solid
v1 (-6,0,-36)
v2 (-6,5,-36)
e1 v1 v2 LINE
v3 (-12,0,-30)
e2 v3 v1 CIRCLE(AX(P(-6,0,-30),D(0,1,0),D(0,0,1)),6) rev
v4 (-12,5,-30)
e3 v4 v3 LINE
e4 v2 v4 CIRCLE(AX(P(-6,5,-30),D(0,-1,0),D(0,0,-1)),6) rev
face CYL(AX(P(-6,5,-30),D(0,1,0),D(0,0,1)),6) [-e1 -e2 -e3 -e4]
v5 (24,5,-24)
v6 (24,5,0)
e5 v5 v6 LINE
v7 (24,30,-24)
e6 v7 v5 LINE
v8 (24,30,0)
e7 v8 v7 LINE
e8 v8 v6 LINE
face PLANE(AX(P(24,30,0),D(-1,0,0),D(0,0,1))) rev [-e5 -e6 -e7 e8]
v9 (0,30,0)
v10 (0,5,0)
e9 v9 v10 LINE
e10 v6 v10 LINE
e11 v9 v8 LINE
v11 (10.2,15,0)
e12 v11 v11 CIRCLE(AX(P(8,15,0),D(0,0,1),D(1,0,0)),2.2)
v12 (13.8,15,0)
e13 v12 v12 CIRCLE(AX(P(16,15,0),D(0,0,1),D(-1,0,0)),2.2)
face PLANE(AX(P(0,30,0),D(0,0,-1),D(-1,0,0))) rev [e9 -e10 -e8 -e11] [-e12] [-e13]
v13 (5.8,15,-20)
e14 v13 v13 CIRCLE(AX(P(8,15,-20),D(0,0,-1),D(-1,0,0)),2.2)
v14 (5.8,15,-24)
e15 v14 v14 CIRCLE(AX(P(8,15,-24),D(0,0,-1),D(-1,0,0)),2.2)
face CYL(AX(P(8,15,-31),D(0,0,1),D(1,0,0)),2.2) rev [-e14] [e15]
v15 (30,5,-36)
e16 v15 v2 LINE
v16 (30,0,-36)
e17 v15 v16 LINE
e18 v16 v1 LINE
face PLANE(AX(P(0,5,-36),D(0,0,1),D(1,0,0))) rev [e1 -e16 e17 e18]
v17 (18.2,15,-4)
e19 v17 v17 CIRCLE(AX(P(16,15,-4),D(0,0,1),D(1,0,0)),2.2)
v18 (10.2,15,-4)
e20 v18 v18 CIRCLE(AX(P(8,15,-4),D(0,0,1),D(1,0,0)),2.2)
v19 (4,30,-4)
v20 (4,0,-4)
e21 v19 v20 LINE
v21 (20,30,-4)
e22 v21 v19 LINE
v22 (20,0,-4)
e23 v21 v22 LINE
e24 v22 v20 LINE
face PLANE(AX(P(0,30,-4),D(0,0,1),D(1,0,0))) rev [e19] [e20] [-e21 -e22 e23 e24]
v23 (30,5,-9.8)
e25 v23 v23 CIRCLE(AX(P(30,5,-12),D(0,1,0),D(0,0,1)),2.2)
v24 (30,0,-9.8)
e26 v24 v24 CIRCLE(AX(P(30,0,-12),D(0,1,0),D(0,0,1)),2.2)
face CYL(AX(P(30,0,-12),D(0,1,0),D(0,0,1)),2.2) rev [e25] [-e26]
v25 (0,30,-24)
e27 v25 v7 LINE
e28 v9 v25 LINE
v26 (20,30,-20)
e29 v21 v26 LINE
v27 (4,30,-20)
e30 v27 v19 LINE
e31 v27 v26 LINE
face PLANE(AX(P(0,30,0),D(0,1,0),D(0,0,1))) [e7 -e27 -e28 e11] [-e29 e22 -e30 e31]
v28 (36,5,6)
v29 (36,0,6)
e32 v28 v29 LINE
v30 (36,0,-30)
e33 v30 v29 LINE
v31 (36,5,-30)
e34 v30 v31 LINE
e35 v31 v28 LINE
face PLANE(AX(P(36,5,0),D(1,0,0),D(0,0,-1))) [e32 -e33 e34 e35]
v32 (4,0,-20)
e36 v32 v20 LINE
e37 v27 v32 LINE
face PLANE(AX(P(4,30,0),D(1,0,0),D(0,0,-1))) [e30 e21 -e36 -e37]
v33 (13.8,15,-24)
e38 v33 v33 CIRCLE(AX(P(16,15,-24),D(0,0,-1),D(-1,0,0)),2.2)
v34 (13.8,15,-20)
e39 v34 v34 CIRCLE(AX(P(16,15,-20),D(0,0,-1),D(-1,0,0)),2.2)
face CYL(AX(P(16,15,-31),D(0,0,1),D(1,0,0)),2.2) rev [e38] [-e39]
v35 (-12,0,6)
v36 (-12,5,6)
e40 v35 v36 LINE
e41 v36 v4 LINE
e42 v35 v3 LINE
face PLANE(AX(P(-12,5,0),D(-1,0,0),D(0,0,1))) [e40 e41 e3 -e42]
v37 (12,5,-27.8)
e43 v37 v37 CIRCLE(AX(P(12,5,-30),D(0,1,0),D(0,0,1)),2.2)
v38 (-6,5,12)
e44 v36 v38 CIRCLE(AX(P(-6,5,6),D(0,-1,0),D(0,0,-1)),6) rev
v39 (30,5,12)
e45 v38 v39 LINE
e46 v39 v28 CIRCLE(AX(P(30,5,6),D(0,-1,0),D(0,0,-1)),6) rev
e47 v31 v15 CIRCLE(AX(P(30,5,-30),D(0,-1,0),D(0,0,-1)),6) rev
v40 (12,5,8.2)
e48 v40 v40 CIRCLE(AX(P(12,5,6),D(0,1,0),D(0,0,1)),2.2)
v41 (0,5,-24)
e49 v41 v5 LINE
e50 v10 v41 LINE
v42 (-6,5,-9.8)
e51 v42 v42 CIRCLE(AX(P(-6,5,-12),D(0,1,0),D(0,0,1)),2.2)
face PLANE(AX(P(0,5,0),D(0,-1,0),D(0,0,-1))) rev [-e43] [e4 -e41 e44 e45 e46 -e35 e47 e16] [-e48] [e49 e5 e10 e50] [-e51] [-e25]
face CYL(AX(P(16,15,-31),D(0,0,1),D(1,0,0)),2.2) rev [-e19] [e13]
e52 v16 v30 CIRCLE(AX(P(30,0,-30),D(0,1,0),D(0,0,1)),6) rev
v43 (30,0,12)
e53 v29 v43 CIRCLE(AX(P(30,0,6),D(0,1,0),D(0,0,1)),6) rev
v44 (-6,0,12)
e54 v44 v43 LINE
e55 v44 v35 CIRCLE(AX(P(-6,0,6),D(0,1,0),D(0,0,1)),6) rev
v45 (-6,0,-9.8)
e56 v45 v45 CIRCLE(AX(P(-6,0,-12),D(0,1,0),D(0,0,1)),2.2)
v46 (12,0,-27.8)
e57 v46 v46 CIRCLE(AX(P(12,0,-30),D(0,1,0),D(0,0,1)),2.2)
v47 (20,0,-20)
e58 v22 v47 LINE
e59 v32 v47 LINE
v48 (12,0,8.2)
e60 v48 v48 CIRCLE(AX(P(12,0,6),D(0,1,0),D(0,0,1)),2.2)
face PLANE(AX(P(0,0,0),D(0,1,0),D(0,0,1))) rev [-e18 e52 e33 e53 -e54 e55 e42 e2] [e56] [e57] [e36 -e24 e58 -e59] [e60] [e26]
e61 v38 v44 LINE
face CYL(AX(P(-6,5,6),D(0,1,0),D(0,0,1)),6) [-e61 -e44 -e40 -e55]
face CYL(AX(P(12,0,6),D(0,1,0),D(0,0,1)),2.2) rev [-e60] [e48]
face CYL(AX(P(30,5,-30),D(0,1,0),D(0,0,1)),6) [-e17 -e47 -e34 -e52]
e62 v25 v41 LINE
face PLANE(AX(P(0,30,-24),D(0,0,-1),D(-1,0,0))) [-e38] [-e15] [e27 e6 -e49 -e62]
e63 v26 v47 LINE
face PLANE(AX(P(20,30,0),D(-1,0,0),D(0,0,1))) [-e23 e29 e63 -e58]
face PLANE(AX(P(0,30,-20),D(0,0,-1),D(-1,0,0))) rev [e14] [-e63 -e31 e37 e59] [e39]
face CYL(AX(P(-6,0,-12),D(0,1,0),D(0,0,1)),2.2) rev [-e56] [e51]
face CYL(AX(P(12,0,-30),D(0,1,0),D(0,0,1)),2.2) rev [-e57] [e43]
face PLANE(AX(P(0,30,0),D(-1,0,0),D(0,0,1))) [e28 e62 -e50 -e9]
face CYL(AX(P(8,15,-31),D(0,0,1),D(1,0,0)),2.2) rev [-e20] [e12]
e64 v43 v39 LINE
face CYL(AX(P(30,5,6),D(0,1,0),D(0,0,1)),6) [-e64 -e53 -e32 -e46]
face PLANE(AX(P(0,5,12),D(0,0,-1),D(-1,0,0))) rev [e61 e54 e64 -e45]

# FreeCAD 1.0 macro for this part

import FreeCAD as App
import Part
import Sketcher
Q = App.Units.Quantity


def edges_at(feature, points):
    """Names of the edges that pass closest to the given points."""
    edges = feature.Shape.Edges
    near = lambda p: min(range(len(edges)), key=lambda i: edges[i].distToShape(Part.Vertex(*p))[0])
    return sorted({f"Edge{near(p) + 1}" for p in points})

doc = App.newDocument("Part")
body = doc.addObject("PartDesign::Body", "Body")

sketch1 = doc.addObject("Sketcher::SketchObject", "Sketch")
body.addObject(sketch1)
sketch1.AttachmentSupport = (doc.XZ_Plane, [""])
sketch1.MapMode = "FlatFace"
sketch1.addGeometry(Part.LineSegment(App.Vector(0, -24, 0), App.Vector(0, 0, 0)), False)
sketch1.addGeometry(Part.LineSegment(App.Vector(0, 0, 0), App.Vector(24, 0, 0)), False)
sketch1.addGeometry(Part.LineSegment(App.Vector(24, 0, 0), App.Vector(24, -24, 0)), False)
sketch1.addGeometry(Part.LineSegment(App.Vector(24, -24, 0), App.Vector(0, -24, 0)), False)
sketch1.addGeometry(Part.LineSegment(App.Vector(20, -4, 0), App.Vector(4, -4, 0)), False)
sketch1.addGeometry(Part.LineSegment(App.Vector(4, -4, 0), App.Vector(4, -20, 0)), False)
sketch1.addGeometry(Part.LineSegment(App.Vector(4, -20, 0), App.Vector(20, -20, 0)), False)
sketch1.addGeometry(Part.LineSegment(App.Vector(20, -20, 0), App.Vector(20, -4, 0)), False)
sketch1.addConstraint(Sketcher.Constraint("Coincident", 0, 2, 1, 1))
sketch1.addConstraint(Sketcher.Constraint("Coincident", 1, 2, 2, 1))
sketch1.addConstraint(Sketcher.Constraint("Coincident", 2, 2, 3, 1))
sketch1.addConstraint(Sketcher.Constraint("Coincident", 3, 2, 0, 1))
sketch1.addConstraint(Sketcher.Constraint("Coincident", 4, 2, 5, 1))
sketch1.addConstraint(Sketcher.Constraint("Coincident", 5, 2, 6, 1))
sketch1.addConstraint(Sketcher.Constraint("Coincident", 6, 2, 7, 1))
sketch1.addConstraint(Sketcher.Constraint("Coincident", 7, 2, 4, 1))
sketch1.addConstraint(Sketcher.Constraint("Vertical", 0))
sketch1.addConstraint(Sketcher.Constraint("Horizontal", 1))
sketch1.addConstraint(Sketcher.Constraint("Vertical", 2))
sketch1.addConstraint(Sketcher.Constraint("Horizontal", 3))
sketch1.addConstraint(Sketcher.Constraint("Horizontal", 4))
sketch1.addConstraint(Sketcher.Constraint("Vertical", 5))
sketch1.addConstraint(Sketcher.Constraint("Horizontal", 6))
sketch1.addConstraint(Sketcher.Constraint("Vertical", 7))
sketch1.addConstraint(Sketcher.Constraint("Coincident", 0, 2, -1, 1))
sketch1.addConstraint(Sketcher.Constraint("Equal", 3, 0))
sketch1.addConstraint(Sketcher.Constraint("Equal", 6, 5))
sketch1.addConstraint(Sketcher.Constraint("DistanceX", 1, 1, 1, 2, Q("24 mm")))
sketch1.addConstraint(Sketcher.Constraint("DistanceX", 4, 2, 4, 1, Q("16 mm")))
sketch1.addConstraint(Sketcher.Constraint("DistanceX", -1, 1, 4, 2, Q("4 mm")))
sketch1.addConstraint(Sketcher.Constraint("DistanceY", 4, 2, -1, 1, Q("4 mm")))
pad1 = doc.addObject("PartDesign::Pad", "Pad")
body.addObject(pad1)
pad1.Profile = sketch1
pad1.Length = 30
pad1.Reversed = True

sketch2 = doc.addObject("Sketcher::SketchObject", "Sketch001")
body.addObject(sketch2)
sketch2.AttachmentSupport = (doc.XY_Plane, [""])
sketch2.MapMode = "FlatFace"
sketch2.addGeometry(Part.Circle(App.Vector(8, 15, 0), App.Vector(0, 0, 1), 2.2), False)
sketch2.addGeometry(Part.Circle(App.Vector(16, 15, 0), App.Vector(0, 0, 1), 2.2), False)
sketch2.addConstraint(Sketcher.Constraint("Equal", 0, 1))
sketch2.addConstraint(Sketcher.Constraint("Horizontal", 0, 3, 1, 3))
sketch2.addConstraint(Sketcher.Constraint("Diameter", 0, Q("4.4 mm")))
sketch2.addConstraint(Sketcher.Constraint("DistanceX", -1, 1, 0, 3, Q("8 mm")))
sketch2.addConstraint(Sketcher.Constraint("DistanceY", -1, 1, 0, 3, Q("15 mm")))
sketch2.addConstraint(Sketcher.Constraint("DistanceX", -1, 1, 1, 3, Q("16 mm")))
pocket1 = doc.addObject("PartDesign::Pocket", "Pocket")
body.addObject(pocket1)
pocket1.Profile = sketch2
pocket1.Length = 31

sketch3 = doc.addObject("Sketcher::SketchObject", "Sketch002")
body.addObject(sketch3)
sketch3.AttachmentSupport = (doc.XZ_Plane, [""])
sketch3.MapMode = "FlatFace"
sketch3.addGeometry(Part.LineSegment(App.Vector(-12, -36, 0), App.Vector(36, -36, 0)), False)
sketch3.addGeometry(Part.LineSegment(App.Vector(36, -36, 0), App.Vector(36, 12, 0)), False)
sketch3.addGeometry(Part.LineSegment(App.Vector(36, 12, 0), App.Vector(-12, 12, 0)), False)
sketch3.addGeometry(Part.LineSegment(App.Vector(-12, 12, 0), App.Vector(-12, -36, 0)), False)
sketch3.addGeometry(Part.LineSegment(App.Vector(0, 0, 0), App.Vector(24, 0, 0)), False)
sketch3.addGeometry(Part.LineSegment(App.Vector(24, 0, 0), App.Vector(24, -24, 0)), False)
sketch3.addGeometry(Part.LineSegment(App.Vector(24, -24, 0), App.Vector(0, -24, 0)), False)
sketch3.addGeometry(Part.LineSegment(App.Vector(0, -24, 0), App.Vector(0, 0, 0)), False)
sketch3.addConstraint(Sketcher.Constraint("Coincident", 0, 2, 1, 1))
sketch3.addConstraint(Sketcher.Constraint("Coincident", 1, 2, 2, 1))
sketch3.addConstraint(Sketcher.Constraint("Coincident", 2, 2, 3, 1))
sketch3.addConstraint(Sketcher.Constraint("Coincident", 3, 2, 0, 1))
sketch3.addConstraint(Sketcher.Constraint("Coincident", 4, 2, 5, 1))
sketch3.addConstraint(Sketcher.Constraint("Coincident", 5, 2, 6, 1))
sketch3.addConstraint(Sketcher.Constraint("Coincident", 6, 2, 7, 1))
sketch3.addConstraint(Sketcher.Constraint("Coincident", 7, 2, 4, 1))
sketch3.addConstraint(Sketcher.Constraint("Horizontal", 0))
sketch3.addConstraint(Sketcher.Constraint("Vertical", 1))
sketch3.addConstraint(Sketcher.Constraint("Horizontal", 2))
sketch3.addConstraint(Sketcher.Constraint("Vertical", 3))
sketch3.addConstraint(Sketcher.Constraint("Horizontal", 4))
sketch3.addConstraint(Sketcher.Constraint("Vertical", 5))
sketch3.addConstraint(Sketcher.Constraint("Horizontal", 6))
sketch3.addConstraint(Sketcher.Constraint("Vertical", 7))
sketch3.addConstraint(Sketcher.Constraint("Coincident", 7, 2, -1, 1))
sketch3.addConstraint(Sketcher.Constraint("Equal", 2, 1))
sketch3.addConstraint(Sketcher.Constraint("Equal", 6, 5))
sketch3.addConstraint(Sketcher.Constraint("DistanceX", 0, 1, 0, 2, Q("48 mm")))
sketch3.addConstraint(Sketcher.Constraint("DistanceX", 4, 1, 4, 2, Q("24 mm")))
sketch3.addConstraint(Sketcher.Constraint("DistanceX", -1, 1, 0, 2, Q("36 mm")))
sketch3.addConstraint(Sketcher.Constraint("DistanceY", 0, 2, -1, 1, Q("36 mm")))
pad2 = doc.addObject("PartDesign::Pad", "Pad001")
body.addObject(pad2)
pad2.Profile = sketch3
pad2.Length = 5
pad2.Reversed = True
doc.recompute()

fillet = doc.addObject("PartDesign::Fillet", "Fillet")
body.addObject(fillet)
fillet.Base = (pad2, edges_at(pad2, [
    (36, 2.5, 12),
    (36, 2.5, -36),
    (-12, 2.5, -36),
    (-12, 2.5, 12),
]))
fillet.Radius = 6

sketch4 = doc.addObject("Sketcher::SketchObject", "Sketch003")
body.addObject(sketch4)
sketch4.AttachmentSupport = (doc.XZ_Plane, [""])
sketch4.MapMode = "FlatFace"
sketch4.AttachmentOffset = App.Placement(App.Vector(0, 0, -5), App.Rotation())
sketch4.addGeometry(Part.Circle(App.Vector(12, 6, 0), App.Vector(0, 0, 1), 2.2), False)
sketch4.addGeometry(Part.Circle(App.Vector(-6, -12, 0), App.Vector(0, 0, 1), 2.2), False)
sketch4.addGeometry(Part.Circle(App.Vector(12, -30, 0), App.Vector(0, 0, 1), 2.2), False)
sketch4.addGeometry(Part.Circle(App.Vector(30, -12, 0), App.Vector(0, 0, 1), 2.2), False)
sketch4.addConstraint(Sketcher.Constraint("Equal", 0, 1))
sketch4.addConstraint(Sketcher.Constraint("Equal", 1, 2))
sketch4.addConstraint(Sketcher.Constraint("Equal", 2, 3))
sketch4.addConstraint(Sketcher.Constraint("Horizontal", 1, 3, 3, 3))
sketch4.addConstraint(Sketcher.Constraint("Vertical", 0, 3, 2, 3))
sketch4.addConstraint(Sketcher.Constraint("Diameter", 0, Q("4.4 mm")))
sketch4.addConstraint(Sketcher.Constraint("DistanceX", -1, 1, 0, 3, Q("12 mm")))
sketch4.addConstraint(Sketcher.Constraint("DistanceY", -1, 1, 0, 3, Q("6 mm")))
sketch4.addConstraint(Sketcher.Constraint("DistanceX", 1, 3, -1, 1, Q("6 mm")))
sketch4.addConstraint(Sketcher.Constraint("DistanceY", 1, 3, -1, 1, Q("12 mm")))
sketch4.addConstraint(Sketcher.Constraint("DistanceY", 2, 3, -1, 1, Q("30 mm")))
sketch4.addConstraint(Sketcher.Constraint("DistanceX", -1, 1, 3, 3, Q("30 mm")))
pocket2 = doc.addObject("PartDesign::Pocket", "Pocket001")
body.addObject(pocket2)
pocket2.Profile = sketch4
pocket2.Length = 5
pocket2.Reversed = True

doc.recompute()
